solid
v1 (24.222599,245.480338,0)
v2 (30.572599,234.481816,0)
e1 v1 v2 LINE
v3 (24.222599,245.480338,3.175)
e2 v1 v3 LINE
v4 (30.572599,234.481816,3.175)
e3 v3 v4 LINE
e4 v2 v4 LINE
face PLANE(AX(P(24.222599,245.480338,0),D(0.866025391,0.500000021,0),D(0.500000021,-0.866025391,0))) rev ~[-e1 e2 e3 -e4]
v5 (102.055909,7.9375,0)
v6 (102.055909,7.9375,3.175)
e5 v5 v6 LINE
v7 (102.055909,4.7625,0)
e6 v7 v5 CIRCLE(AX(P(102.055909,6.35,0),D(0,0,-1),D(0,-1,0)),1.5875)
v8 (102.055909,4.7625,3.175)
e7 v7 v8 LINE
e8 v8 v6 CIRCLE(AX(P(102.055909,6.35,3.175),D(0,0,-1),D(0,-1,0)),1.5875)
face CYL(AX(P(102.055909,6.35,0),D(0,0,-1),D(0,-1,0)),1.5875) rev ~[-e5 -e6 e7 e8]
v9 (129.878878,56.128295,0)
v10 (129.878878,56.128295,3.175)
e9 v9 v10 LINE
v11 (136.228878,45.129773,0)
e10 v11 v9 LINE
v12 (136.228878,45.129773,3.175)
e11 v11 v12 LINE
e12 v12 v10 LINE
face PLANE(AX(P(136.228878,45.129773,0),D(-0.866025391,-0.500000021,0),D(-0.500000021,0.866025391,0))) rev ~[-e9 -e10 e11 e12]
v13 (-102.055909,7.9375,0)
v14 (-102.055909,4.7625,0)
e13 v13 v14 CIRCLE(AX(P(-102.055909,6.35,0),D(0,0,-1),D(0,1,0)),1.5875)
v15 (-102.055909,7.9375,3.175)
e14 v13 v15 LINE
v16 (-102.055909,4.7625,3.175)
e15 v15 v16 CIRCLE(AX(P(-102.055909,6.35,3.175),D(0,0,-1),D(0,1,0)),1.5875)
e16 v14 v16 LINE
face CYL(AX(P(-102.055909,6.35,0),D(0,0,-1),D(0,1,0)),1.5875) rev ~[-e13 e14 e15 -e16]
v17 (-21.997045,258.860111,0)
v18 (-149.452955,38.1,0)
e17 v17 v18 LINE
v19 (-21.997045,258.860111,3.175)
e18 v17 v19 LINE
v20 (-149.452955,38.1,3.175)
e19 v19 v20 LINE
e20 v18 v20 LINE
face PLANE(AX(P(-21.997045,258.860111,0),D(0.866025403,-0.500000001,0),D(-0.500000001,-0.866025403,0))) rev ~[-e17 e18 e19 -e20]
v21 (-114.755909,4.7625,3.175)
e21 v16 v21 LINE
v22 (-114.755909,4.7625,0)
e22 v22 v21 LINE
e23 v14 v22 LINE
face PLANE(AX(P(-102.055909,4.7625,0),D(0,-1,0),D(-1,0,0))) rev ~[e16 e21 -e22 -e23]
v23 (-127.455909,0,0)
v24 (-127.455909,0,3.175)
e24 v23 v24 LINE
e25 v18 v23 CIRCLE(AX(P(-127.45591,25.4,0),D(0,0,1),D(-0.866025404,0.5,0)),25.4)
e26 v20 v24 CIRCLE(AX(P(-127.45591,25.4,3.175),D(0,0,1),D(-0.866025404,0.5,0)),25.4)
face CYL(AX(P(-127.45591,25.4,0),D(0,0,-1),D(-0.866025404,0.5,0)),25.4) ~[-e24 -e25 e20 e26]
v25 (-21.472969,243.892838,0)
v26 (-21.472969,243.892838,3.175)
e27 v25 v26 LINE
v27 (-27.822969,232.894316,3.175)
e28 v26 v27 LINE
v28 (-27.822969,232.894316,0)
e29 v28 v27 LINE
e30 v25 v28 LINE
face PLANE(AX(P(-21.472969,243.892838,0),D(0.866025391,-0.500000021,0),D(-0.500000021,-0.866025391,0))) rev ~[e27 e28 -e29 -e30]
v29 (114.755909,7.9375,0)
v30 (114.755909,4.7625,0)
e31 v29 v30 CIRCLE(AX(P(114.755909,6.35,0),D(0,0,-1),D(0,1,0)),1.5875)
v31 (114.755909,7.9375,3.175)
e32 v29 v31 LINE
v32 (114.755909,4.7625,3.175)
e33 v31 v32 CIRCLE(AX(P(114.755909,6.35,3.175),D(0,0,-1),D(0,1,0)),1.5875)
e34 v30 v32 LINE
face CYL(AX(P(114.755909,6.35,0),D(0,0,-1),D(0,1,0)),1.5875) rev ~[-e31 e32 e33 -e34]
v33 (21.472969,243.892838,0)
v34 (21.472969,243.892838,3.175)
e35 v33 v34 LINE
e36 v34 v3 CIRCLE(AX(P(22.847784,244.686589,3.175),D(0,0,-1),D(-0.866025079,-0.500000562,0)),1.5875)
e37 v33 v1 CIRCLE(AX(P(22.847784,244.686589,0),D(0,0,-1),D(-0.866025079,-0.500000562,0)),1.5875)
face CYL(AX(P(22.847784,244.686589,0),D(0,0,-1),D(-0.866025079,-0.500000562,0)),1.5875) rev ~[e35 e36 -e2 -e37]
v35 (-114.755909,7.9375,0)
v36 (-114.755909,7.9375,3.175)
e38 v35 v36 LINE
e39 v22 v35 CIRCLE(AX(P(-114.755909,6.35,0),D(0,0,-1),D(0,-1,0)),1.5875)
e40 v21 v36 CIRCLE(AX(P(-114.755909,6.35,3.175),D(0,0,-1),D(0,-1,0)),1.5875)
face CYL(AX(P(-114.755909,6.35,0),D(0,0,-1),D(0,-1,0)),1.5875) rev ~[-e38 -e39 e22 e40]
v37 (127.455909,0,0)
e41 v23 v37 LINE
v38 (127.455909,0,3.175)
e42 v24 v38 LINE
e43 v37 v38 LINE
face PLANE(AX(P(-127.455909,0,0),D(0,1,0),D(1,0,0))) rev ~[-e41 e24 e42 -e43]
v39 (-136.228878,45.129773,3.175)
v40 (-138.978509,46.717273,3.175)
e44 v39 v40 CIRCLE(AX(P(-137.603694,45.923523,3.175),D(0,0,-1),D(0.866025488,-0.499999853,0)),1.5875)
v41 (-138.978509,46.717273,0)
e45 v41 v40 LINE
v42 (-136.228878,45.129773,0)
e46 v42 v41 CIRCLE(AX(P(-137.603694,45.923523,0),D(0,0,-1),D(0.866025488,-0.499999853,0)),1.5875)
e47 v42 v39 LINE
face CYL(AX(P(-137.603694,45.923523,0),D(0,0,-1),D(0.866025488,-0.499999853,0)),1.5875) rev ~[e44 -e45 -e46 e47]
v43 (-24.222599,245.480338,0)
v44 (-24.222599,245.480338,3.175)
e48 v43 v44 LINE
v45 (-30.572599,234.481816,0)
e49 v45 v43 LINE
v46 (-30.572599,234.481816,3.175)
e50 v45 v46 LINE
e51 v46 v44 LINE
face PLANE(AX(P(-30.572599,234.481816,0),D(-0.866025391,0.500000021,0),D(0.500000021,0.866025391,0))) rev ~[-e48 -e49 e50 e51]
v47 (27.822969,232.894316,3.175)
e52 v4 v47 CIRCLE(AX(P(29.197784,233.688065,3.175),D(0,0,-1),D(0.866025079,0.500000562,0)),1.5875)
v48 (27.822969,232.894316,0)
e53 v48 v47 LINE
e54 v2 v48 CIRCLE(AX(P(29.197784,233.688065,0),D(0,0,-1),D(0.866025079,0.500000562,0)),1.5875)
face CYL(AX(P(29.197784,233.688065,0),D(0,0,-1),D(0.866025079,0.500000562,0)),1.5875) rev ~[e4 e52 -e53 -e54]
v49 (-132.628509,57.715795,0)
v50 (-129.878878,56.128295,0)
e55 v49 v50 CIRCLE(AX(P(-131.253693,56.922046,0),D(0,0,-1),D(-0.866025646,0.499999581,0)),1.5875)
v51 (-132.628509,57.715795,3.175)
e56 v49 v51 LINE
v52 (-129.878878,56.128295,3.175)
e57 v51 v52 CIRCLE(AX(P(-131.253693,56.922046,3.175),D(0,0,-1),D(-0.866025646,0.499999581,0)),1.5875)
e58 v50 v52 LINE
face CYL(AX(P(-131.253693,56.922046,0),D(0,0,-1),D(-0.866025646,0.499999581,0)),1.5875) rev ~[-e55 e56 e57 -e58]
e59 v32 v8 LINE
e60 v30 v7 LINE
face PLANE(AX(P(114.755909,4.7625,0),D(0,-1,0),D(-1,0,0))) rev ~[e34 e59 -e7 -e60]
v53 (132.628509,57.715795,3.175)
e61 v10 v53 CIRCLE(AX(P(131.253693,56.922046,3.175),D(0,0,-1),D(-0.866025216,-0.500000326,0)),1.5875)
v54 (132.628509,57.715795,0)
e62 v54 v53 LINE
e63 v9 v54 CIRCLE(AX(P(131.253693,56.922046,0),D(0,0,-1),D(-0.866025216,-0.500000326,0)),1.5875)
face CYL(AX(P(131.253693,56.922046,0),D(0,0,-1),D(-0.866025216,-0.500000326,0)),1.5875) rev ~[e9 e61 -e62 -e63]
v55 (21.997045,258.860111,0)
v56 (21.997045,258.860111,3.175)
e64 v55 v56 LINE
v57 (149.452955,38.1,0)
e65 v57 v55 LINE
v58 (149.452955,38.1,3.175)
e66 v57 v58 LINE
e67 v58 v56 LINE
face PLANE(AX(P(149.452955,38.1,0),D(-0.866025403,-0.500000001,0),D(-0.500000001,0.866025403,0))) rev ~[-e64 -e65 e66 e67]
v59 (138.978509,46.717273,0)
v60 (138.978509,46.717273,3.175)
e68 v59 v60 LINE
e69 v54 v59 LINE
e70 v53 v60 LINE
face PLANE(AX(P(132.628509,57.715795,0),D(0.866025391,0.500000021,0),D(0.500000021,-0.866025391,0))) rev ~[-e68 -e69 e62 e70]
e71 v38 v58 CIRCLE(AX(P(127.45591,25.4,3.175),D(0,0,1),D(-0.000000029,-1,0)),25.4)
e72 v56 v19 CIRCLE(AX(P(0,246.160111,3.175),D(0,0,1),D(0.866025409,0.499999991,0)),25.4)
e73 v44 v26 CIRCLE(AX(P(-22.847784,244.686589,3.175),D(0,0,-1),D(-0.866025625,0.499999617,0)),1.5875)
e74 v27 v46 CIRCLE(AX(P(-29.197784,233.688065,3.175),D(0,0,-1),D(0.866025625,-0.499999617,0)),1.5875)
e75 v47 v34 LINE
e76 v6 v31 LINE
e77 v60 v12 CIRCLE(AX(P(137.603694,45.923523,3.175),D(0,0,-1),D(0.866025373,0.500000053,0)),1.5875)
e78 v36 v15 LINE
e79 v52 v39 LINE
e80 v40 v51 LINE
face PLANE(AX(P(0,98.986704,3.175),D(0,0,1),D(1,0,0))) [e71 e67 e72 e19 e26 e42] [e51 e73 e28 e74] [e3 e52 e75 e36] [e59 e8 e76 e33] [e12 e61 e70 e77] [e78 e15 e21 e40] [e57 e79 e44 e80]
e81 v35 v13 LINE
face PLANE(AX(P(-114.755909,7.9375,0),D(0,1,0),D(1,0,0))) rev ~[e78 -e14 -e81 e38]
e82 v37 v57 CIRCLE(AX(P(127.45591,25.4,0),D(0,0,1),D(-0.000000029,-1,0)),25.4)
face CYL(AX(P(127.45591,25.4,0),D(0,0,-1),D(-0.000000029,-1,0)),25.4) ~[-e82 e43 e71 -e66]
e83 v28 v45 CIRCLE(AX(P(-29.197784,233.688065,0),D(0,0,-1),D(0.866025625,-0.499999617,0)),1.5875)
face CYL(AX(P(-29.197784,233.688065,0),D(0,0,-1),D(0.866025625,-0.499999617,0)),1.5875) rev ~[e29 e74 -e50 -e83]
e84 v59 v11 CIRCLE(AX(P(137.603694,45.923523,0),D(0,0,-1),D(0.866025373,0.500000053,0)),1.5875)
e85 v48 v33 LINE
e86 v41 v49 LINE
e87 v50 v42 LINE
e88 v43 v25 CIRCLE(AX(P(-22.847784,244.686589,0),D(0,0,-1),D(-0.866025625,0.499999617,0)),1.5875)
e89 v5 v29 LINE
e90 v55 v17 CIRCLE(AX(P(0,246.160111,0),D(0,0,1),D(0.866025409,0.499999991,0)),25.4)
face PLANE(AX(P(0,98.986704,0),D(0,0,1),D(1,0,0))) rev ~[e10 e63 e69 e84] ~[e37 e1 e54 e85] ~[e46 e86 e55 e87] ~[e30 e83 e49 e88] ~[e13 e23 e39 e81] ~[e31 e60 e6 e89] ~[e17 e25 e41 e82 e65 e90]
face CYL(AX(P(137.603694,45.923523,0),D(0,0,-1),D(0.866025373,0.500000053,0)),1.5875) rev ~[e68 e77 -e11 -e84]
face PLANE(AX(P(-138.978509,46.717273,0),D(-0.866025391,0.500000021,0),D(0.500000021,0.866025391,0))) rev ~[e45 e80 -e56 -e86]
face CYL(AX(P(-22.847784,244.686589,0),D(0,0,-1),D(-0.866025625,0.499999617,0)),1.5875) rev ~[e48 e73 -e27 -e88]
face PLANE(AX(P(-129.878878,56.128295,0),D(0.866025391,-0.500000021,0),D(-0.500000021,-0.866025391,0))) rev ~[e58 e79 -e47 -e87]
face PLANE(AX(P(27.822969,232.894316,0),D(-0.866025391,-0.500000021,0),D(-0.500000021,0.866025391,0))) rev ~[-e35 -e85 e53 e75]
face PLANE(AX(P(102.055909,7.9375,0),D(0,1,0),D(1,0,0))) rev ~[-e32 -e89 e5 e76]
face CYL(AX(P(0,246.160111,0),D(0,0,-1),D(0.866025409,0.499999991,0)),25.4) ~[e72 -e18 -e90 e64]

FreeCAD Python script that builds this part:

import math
import FreeCAD as App
import Part
import Sketcher
from FreeCAD import Vector
Q = App.Units.Quantity

doc = App.newDocument("Part")
body = doc.addObject("PartDesign::Body", "Body")

# Sketch on XY plane
sketch1 = body.newObject("Sketcher::SketchObject", "Sketch")
sketch1.AttachmentSupport = (doc.getObject("XY_Plane"), [""])
sketch1.MapMode = "FlatFace"
sketch1.addGeometry(Part.ArcOfCircle(Part.Circle(Vector(-127.5, 25.4, 0), Vector(0, 0, 1), 25.4), math.radians(150), math.radians(270)), False)
sketch1.addGeometry(Part.LineSegment(Vector(-127.5, 0, 0), Vector(127.5, 0, 0)), False)
sketch1.addGeometry(Part.ArcOfCircle(Part.Circle(Vector(127.5, 25.4, 0), Vector(0, 0, 1), 25.4), math.radians(-90), math.radians(30)), False)
sketch1.addGeometry(Part.LineSegment(Vector(149.5, 38.1, 0), Vector(22, 258.9, 0)), False)
sketch1.addGeometry(Part.ArcOfCircle(Part.Circle(Vector(0, 246.2, 0), Vector(0, 0, 1), 25.4), math.radians(30), math.radians(150)), False)
sketch1.addGeometry(Part.LineSegment(Vector(-22, 258.9, 0), Vector(-149.5, 38.1, 0)), False)
sketch1.addGeometry(Part.LineSegment(Vector(-102.1, 4.8, 0), Vector(-114.8, 4.8, 0)), False)
sketch1.addGeometry(Part.ArcOfCircle(Part.Circle(Vector(-114.8, 6.3, 0), Vector(0, 0, 1), 1.6), math.radians(90), math.radians(270)), False)
sketch1.addGeometry(Part.LineSegment(Vector(-114.8, 7.9, 0), Vector(-102.1, 7.9, 0)), False)
sketch1.addGeometry(Part.ArcOfCircle(Part.Circle(Vector(-102.1, 6.3, 0), Vector(0, 0, 1), 1.6), math.radians(-90), math.radians(90)), False)
sketch1.addGeometry(Part.LineSegment(Vector(-129.9, 56.1, 0), Vector(-136.2, 45.1, 0)), False)
sketch1.addGeometry(Part.ArcOfCircle(Part.Circle(Vector(-137.6, 45.9, 0), Vector(0, 0, 1), 1.6), math.radians(150), math.radians(330)), False)
sketch1.addGeometry(Part.LineSegment(Vector(-139, 46.7, 0), Vector(-132.6, 57.7, 0)), False)
sketch1.addGeometry(Part.ArcOfCircle(Part.Circle(Vector(-131.3, 56.9, 0), Vector(0, 0, 1), 1.6), math.radians(-30), math.radians(150)), False)
sketch1.addGeometry(Part.LineSegment(Vector(102.1, 7.9, 0), Vector(114.8, 7.9, 0)), False)
sketch1.addGeometry(Part.ArcOfCircle(Part.Circle(Vector(114.8, 6.3, 0), Vector(0, 0, 1), 1.6), math.radians(-90), math.radians(90)), False)
sketch1.addGeometry(Part.LineSegment(Vector(114.8, 4.8, 0), Vector(102.1, 4.8, 0)), False)
sketch1.addGeometry(Part.ArcOfCircle(Part.Circle(Vector(102.1, 6.3, 0), Vector(0, 0, 1), 1.6), math.radians(90), math.radians(270)), False)
sketch1.addGeometry(Part.LineSegment(Vector(136.2, 45.1, 0), Vector(129.9, 56.1, 0)), False)
sketch1.addGeometry(Part.ArcOfCircle(Part.Circle(Vector(131.3, 56.9, 0), Vector(0, 0, 1), 1.6), math.radians(30), math.radians(210)), False)
sketch1.addGeometry(Part.LineSegment(Vector(132.6, 57.7, 0), Vector(139, 46.7, 0)), False)
sketch1.addGeometry(Part.ArcOfCircle(Part.Circle(Vector(137.6, 45.9, 0), Vector(0, 0, 1), 1.6), math.radians(-150), math.radians(30)), False)
sketch1.addGeometry(Part.LineSegment(Vector(-30.6, 234.5, 0), Vector(-24.2, 245.5, 0)), False)
sketch1.addGeometry(Part.ArcOfCircle(Part.Circle(Vector(-22.8, 244.7, 0), Vector(0, 0, 1), 1.6), math.radians(-30), math.radians(150)), False)
sketch1.addGeometry(Part.LineSegment(Vector(-21.5, 243.9, 0), Vector(-27.8, 232.9, 0)), False)
sketch1.addGeometry(Part.ArcOfCircle(Part.Circle(Vector(-29.2, 233.7, 0), Vector(0, 0, 1), 1.6), math.radians(150), math.radians(330)), False)
sketch1.addGeometry(Part.LineSegment(Vector(27.8, 232.9, 0), Vector(21.5, 243.9, 0)), False)
sketch1.addGeometry(Part.ArcOfCircle(Part.Circle(Vector(22.8, 244.7, 0), Vector(0, 0, 1), 1.6), math.radians(30), math.radians(210)), False)
sketch1.addGeometry(Part.LineSegment(Vector(24.2, 245.5, 0), Vector(30.6, 234.5, 0)), False)
sketch1.addGeometry(Part.ArcOfCircle(Part.Circle(Vector(29.2, 233.7, 0), Vector(0, 0, 1), 1.6), math.radians(-150), math.radians(30)), False)
sketch1.addConstraint(Sketcher.Constraint("Tangent", 0, 2, 1, 1))
sketch1.addConstraint(Sketcher.Constraint("Tangent", 1, 2, 2, 1))
sketch1.addConstraint(Sketcher.Constraint("Tangent", 2, 2, 3, 1))
sketch1.addConstraint(Sketcher.Constraint("Tangent", 3, 2, 4, 1))
sketch1.addConstraint(Sketcher.Constraint("Tangent", 4, 2, 5, 1))
sketch1.addConstraint(Sketcher.Constraint("Tangent", 5, 2, 0, 1))
sketch1.addConstraint(Sketcher.Constraint("Tangent", 6, 2, 7, 2))
sketch1.addConstraint(Sketcher.Constraint("Tangent", 7, 1, 8, 1))
sketch1.addConstraint(Sketcher.Constraint("Tangent", 8, 2, 9, 2))
sketch1.addConstraint(Sketcher.Constraint("Tangent", 9, 1, 6, 1))
sketch1.addConstraint(Sketcher.Constraint("Tangent", 10, 2, 11, 2))
sketch1.addConstraint(Sketcher.Constraint("Tangent", 11, 1, 12, 1))
sketch1.addConstraint(Sketcher.Constraint("Tangent", 12, 2, 13, 2))
sketch1.addConstraint(Sketcher.Constraint("Tangent", 13, 1, 10, 1))
sketch1.addConstraint(Sketcher.Constraint("Tangent", 14, 2, 15, 2))
sketch1.addConstraint(Sketcher.Constraint("Tangent", 15, 1, 16, 1))
sketch1.addConstraint(Sketcher.Constraint("Tangent", 16, 2, 17, 2))
sketch1.addConstraint(Sketcher.Constraint("Tangent", 17, 1, 14, 1))
sketch1.addConstraint(Sketcher.Constraint("Tangent", 18, 2, 19, 2))
sketch1.addConstraint(Sketcher.Constraint("Tangent", 19, 1, 20, 1))
sketch1.addConstraint(Sketcher.Constraint("Tangent", 20, 2, 21, 2))
sketch1.addConstraint(Sketcher.Constraint("Tangent", 21, 1, 18, 1))
sketch1.addConstraint(Sketcher.Constraint("Tangent", 22, 2, 23, 2))
sketch1.addConstraint(Sketcher.Constraint("Tangent", 23, 1, 24, 1))
sketch1.addConstraint(Sketcher.Constraint("Tangent", 24, 2, 25, 2))
sketch1.addConstraint(Sketcher.Constraint("Tangent", 25, 1, 22, 1))
sketch1.addConstraint(Sketcher.Constraint("Tangent", 26, 2, 27, 2))
sketch1.addConstraint(Sketcher.Constraint("Tangent", 27, 1, 28, 1))
sketch1.addConstraint(Sketcher.Constraint("Tangent", 28, 2, 29, 2))
sketch1.addConstraint(Sketcher.Constraint("Tangent", 29, 1, 26, 1))
sketch1.addConstraint(Sketcher.Constraint("Horizontal", 1))
sketch1.addConstraint(Sketcher.Constraint("Horizontal", 6))
sketch1.addConstraint(Sketcher.Constraint("Horizontal", 8))
sketch1.addConstraint(Sketcher.Constraint("Horizontal", 14))
sketch1.addConstraint(Sketcher.Constraint("Horizontal", 16))
sketch1.addConstraint(Sketcher.Constraint("Equal", 0, 2))
sketch1.addConstraint(Sketcher.Constraint("Equal", 2, 4))
sketch1.addConstraint(Sketcher.Constraint("Equal", 9, 11))
sketch1.addConstraint(Sketcher.Constraint("Equal", 11, 13))
sketch1.addConstraint(Sketcher.Constraint("Equal", 13, 15))
sketch1.addConstraint(Sketcher.Constraint("Equal", 17, 19))
sketch1.addConstraint(Sketcher.Constraint("Equal", 19, 21))
sketch1.addConstraint(Sketcher.Constraint("Equal", 21, 23))
sketch1.addConstraint(Sketcher.Constraint("Equal", 23, 25))
sketch1.addConstraint(Sketcher.Constraint("Equal", 25, 27))
sketch1.addConstraint(Sketcher.Constraint("Equal", 27, 29))
sketch1.addConstraint(Sketcher.Constraint("Symmetric", 0, 2, 1, 2, -1, 1))
sketch1.addConstraint(Sketcher.Constraint("Symmetric", 7, 3, 15, 3, -2))
sketch1.addConstraint(Sketcher.Constraint("Symmetric", 13, 3, 19, 3, -2))
sketch1.addConstraint(Sketcher.Constraint("Symmetric", 11, 3, 21, 3, -2))
sketch1.addConstraint(Sketcher.Constraint("Symmetric", 23, 3, 27, 3, -2))
sketch1.addConstraint(Sketcher.Constraint("Symmetric", 25, 3, 29, 3, -2))
sketch1.addConstraint(Sketcher.Constraint("PointOnObject", 4, 3, -2))
sketch1.addConstraint(Sketcher.Constraint("Parallel", 5, 10))
sketch1.addConstraint(Sketcher.Constraint("Parallel", 12, 22))
sketch1.addConstraint(Sketcher.Constraint("Equal", 8, 14))
sketch1.addConstraint(Sketcher.Constraint("Equal", 20, 22))
sketch1.addConstraint(Sketcher.Constraint("Radius", 0, Q("1 in")))
sketch1.addConstraint(Sketcher.Constraint("DistanceX", 6, 2, 6, 1, Q("0.5 in")))
sketch1.addConstraint(Sketcher.Constraint("Angle", 3, Q("120 deg")))
sketch1.addConstraint(Sketcher.Constraint("Radius", 7, Q("0.0625 in")))
sketch1.addConstraint(Sketcher.Constraint("DistanceX", 0, 3, 9, 3, Q("1 in")))
sketch1.addConstraint(Sketcher.Constraint("Distance", 10, Q("0.5 in")))
sketch1.addConstraint(Sketcher.Constraint("DistanceY", -1, 1, 7, 3, Q("0.25 in")))
sketch1.addConstraint(Sketcher.Constraint("DistanceX", 1, 1, 1, 2, 254.911818))
sketch1.addConstraint(Sketcher.Constraint("DistanceX", 22, 2, -1, 1, 24.222599))
sketch1.addConstraint(Sketcher.Constraint("DistanceX", 11, 1, 0, 3, 11.522599))
sketch1.addConstraint(Sketcher.Constraint("DistanceY", -1, 1, 23, 3, 244.686589))
sketch1.addConstraint(Sketcher.Constraint("DistanceY", 11, 3, 4, 3, 200.236589))
pad1 = body.newObject("PartDesign::Pad", "Pad")
pad1.Profile = sketch1
pad1.Length = Q("0.125 in")

doc.recompute()
